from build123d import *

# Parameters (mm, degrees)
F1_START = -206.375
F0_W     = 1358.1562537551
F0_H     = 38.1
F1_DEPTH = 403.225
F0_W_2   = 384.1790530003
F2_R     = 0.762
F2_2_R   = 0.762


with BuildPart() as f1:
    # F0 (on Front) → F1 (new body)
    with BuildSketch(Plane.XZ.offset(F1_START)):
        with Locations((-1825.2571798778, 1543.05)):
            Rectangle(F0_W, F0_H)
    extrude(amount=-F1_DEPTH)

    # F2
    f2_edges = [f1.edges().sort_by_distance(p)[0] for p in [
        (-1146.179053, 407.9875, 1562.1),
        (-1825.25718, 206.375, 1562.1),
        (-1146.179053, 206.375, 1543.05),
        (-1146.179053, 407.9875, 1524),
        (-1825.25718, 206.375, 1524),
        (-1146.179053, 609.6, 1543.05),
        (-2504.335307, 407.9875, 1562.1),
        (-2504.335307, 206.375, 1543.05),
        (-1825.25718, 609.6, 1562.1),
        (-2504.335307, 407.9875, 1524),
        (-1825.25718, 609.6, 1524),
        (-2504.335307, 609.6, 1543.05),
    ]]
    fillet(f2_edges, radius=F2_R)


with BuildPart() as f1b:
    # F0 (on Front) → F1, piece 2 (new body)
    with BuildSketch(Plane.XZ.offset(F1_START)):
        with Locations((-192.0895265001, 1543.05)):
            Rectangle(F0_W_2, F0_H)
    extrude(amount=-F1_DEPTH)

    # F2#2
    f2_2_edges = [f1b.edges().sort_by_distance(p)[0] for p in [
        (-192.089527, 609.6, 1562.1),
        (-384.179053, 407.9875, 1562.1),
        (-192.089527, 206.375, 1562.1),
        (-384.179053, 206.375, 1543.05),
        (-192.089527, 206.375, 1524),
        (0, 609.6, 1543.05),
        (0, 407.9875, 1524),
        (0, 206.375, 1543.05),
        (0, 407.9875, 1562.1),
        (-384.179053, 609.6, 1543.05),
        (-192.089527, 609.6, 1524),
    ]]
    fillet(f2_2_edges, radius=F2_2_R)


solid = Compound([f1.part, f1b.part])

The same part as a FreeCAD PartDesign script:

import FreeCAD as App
import Part
import Sketcher

V = App.Vector
Q = App.Units.Quantity


def add_polygon(sketch, points):
    """Adds a closed chain of lines whose ends are joined by coincident constraints."""
    first, n = sketch.GeometryCount, len(points)
    for a, b in zip(points, points[1:] + points[:1]):
        sketch.addGeometry(Part.LineSegment(App.Vector(*a, 0), App.Vector(*b, 0)), False)
    for i in range(n):
        sketch.addConstraint(Sketcher.Constraint("Coincident", first + i, 2, first + (i + 1) % n, 1))

doc = App.newDocument("Part")
body = doc.addObject("PartDesign::Body", "Body")

# Sketch on XZ plane
sketch1 = doc.addObject("Sketcher::SketchObject", "Sketch")
body.addObject(sketch1)
sketch1.AttachmentSupport = (doc.XZ_Plane, [""])
sketch1.MapMode = "FlatFace"
sketch1.AttachmentOffset = App.Placement(V(0, 0, -8.125 * 25.4), App.Rotation())
add_polygon(sketch1, [(-2504.335307, 1562.1), (-2504.335307, 1524), (-1146.179053, 1524), (-1146.179053, 1562.1)])  # lines 0-3
sketch1.addConstraint([
    Sketcher.Constraint("Vertical", 0),
    Sketcher.Constraint("Horizontal", 1),
    Sketcher.Constraint("Vertical", 2),
    Sketcher.Constraint("Horizontal", 3),
    Sketcher.Constraint("DistanceY", 0, 2, 0, 1, Q("1.5 in")),
    Sketcher.Constraint("DistanceY", -1, 1, 0, 2, Q("60 in")),
    Sketcher.Constraint("DistanceX", 1, 1, 1, 2, 1358.156254),
    Sketcher.Constraint("DistanceX", 0, 2, -1, 1, 2504.335307),
])
pad1 = doc.addObject("PartDesign::Pad", "Pad")
body.addObject(pad1)
pad1.Profile = sketch1
pad1.Length = Q("15.875 in")
pad1.Reversed = True
doc.recompute()

fillet = doc.addObject("PartDesign::Fillet", "Fillet")
body.addObject(fillet)
fillet.Base = (pad1, ["Edge1"])
fillet.UseAllEdges = True
fillet.Radius = Q("0.03 in")
body2 = doc.addObject("PartDesign::Body", "Body001")

# Sketch on XZ plane
sketch2 = doc.addObject("Sketcher::SketchObject", "Sketch001")
body2.addObject(sketch2)
sketch2.AttachmentSupport = (doc.getObject("XZ_Plane001"), [""])
sketch2.MapMode = "FlatFace"
sketch2.AttachmentOffset = App.Placement(V(0, 0, -8.125 * 25.4), App.Rotation())
add_polygon(sketch2, [(-384.179053, 1562.1), (-384.179053, 1524), (0, 1524), (0, 1562.1)])  # lines 0-3
sketch2.addConstraint([
    Sketcher.Constraint("Vertical", 0),
    Sketcher.Constraint("Horizontal", 1),
    Sketcher.Constraint("Vertical", 2),
    Sketcher.Constraint("Horizontal", 3),
    Sketcher.Constraint("PointOnObject", 1, 2, -2),
    Sketcher.Constraint("DistanceY", 0, 2, 0, 1, Q("1.5 in")),
    Sketcher.Constraint("DistanceY", -1, 1, 0, 2, Q("60 in")),
    Sketcher.Constraint("DistanceX", 1, 1, 1, 2, 384.179053),
])
pad2 = doc.addObject("PartDesign::Pad", "Pad001")
body2.addObject(pad2)
pad2.Profile = sketch2
pad2.Length = Q("15.875 in")
pad2.Reversed = True
doc.recompute()

fillet2 = doc.addObject("PartDesign::Fillet", "Fillet001")
body2.addObject(fillet2)
fillet2.Base = (pad2, ["Edge1"])
fillet2.UseAllEdges = True
fillet2.Radius = Q("0.03 in")

doc.recompute()
